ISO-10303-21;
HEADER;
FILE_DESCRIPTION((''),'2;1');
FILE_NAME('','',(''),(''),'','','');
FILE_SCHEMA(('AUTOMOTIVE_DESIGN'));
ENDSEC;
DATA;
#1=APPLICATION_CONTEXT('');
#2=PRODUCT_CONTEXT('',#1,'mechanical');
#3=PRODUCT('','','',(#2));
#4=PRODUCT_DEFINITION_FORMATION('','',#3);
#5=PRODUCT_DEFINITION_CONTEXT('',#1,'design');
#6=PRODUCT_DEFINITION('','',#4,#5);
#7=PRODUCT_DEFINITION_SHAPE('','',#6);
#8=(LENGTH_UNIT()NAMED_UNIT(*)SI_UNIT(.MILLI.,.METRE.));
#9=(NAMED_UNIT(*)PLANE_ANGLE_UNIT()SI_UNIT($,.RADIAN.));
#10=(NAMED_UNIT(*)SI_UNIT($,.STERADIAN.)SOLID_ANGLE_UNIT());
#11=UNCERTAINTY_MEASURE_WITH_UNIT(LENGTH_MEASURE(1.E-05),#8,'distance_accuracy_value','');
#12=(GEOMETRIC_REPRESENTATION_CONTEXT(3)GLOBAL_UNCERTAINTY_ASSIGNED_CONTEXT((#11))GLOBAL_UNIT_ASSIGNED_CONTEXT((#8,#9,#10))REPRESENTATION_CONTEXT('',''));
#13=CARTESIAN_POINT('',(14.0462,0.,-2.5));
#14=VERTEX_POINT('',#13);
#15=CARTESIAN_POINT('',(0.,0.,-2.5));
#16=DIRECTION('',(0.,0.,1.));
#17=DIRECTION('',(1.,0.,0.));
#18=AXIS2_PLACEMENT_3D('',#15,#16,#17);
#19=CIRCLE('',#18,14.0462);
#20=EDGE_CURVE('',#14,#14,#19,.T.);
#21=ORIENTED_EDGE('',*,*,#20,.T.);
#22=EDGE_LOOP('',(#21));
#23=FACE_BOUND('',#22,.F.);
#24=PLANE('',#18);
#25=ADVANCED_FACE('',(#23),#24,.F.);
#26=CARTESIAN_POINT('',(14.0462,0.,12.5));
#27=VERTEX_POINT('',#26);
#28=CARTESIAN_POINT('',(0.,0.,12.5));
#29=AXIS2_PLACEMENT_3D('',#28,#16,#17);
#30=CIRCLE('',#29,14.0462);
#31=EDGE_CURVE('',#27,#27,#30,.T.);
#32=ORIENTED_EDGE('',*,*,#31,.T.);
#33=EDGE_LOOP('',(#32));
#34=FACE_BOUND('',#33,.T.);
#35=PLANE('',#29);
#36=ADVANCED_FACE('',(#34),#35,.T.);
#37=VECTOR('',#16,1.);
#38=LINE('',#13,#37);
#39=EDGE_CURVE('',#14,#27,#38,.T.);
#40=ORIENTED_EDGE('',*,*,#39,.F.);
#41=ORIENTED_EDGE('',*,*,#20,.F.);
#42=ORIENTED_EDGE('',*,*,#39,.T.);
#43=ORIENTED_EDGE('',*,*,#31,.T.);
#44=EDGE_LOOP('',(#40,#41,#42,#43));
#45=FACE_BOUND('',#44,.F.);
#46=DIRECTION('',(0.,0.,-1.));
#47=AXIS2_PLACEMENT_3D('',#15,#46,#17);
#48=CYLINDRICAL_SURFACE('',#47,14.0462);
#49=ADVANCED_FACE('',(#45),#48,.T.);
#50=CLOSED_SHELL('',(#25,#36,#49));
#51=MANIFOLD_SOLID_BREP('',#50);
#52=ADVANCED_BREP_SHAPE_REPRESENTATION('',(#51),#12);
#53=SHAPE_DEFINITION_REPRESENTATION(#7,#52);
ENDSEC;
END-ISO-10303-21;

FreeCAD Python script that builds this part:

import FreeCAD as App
import Part
import Sketcher
from FreeCAD import Vector
Q = App.Units.Quantity

doc = App.newDocument("Part")
body = doc.addObject("PartDesign::Body", "Body")

# Sketch on XY plane
sketch1 = body.newObject("Sketcher::SketchObject", "Sketch")
sketch1.AttachmentSupport = (doc.getObject("XY_Plane"), [""])
sketch1.MapMode = "FlatFace"
sketch1.AttachmentOffset = App.Placement(Vector(0, 0, -2.5), App.Rotation())
sketch1.addGeometry(Part.Circle(Vector(0, 0, 0), Vector(0, 0, 1), 14), False)
sketch1.addConstraint([
    Sketcher.Constraint("Coincident", 0, 3, -1, 1),
    Sketcher.Constraint("Diameter", 0, Q("28.0924 mm")),
])
pad1 = body.newObject("PartDesign::Pad", "Pad")
pad1.Profile = sketch1
pad1.Length = 15

doc.recompute()
